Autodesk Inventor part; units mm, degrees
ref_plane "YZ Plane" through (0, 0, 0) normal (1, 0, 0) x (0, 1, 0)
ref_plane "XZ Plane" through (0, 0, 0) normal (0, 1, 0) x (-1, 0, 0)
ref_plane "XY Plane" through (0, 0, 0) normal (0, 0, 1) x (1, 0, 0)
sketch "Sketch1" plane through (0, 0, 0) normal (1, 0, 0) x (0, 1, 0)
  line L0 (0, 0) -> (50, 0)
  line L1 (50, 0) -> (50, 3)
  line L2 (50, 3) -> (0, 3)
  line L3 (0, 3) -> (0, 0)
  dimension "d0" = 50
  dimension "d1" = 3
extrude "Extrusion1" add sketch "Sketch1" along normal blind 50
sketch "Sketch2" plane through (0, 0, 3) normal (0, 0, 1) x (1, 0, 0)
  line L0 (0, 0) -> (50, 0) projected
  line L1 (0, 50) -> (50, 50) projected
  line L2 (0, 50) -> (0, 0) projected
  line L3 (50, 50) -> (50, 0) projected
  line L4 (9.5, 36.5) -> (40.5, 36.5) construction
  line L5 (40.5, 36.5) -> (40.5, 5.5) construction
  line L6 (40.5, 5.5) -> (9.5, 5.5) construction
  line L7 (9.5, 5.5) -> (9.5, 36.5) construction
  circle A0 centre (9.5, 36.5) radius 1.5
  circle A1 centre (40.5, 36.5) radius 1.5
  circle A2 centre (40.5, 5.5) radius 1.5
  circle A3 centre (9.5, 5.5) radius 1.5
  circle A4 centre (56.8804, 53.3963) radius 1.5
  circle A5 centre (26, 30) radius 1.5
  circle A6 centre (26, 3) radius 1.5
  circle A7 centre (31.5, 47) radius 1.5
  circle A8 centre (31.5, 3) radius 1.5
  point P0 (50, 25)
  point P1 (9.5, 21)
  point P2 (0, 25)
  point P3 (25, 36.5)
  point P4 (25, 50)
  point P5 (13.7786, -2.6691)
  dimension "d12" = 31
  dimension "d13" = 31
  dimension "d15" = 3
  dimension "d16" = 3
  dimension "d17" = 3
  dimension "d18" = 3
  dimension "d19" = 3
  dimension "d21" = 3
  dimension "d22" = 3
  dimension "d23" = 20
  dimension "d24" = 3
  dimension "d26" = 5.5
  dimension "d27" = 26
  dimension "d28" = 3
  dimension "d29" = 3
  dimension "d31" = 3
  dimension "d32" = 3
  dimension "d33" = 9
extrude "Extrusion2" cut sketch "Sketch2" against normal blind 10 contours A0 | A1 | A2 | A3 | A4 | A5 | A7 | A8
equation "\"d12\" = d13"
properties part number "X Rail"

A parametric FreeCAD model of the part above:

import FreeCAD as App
import Part
import Sketcher

V = App.Vector

doc = App.newDocument("Part")
body = doc.addObject("PartDesign::Body", "Body")

# Sketch on YZ plane
sketch1 = body.newObject("Sketcher::SketchObject", "Sketch")
sketch1.AttachmentSupport = (doc.getObject("YZ_Plane"), [""])
sketch1.MapMode = "FlatFace"
sketch1.addGeometry([
    Part.LineSegment(V(0, 3, 0), V(0, 0, 0)),
    Part.LineSegment(V(0, 0, 0), V(50, 0, 0)),
    Part.LineSegment(V(50, 0, 0), V(50, 3, 0)),
    Part.LineSegment(V(50, 3, 0), V(0, 3, 0)),
], False)
sketch1.addConstraint([
    Sketcher.Constraint("Coincident", 0, 2, 1, 1),
    Sketcher.Constraint("Coincident", 1, 2, 2, 1),
    Sketcher.Constraint("Coincident", 2, 2, 3, 1),
    Sketcher.Constraint("Coincident", 3, 2, 0, 1),
    Sketcher.Constraint("Vertical", 0),
    Sketcher.Constraint("Horizontal", 1),
    Sketcher.Constraint("Vertical", 2),
    Sketcher.Constraint("Horizontal", 3),
    Sketcher.Constraint("Coincident", 0, 2, -1, 1),
    Sketcher.Constraint("DistanceX", 1, 1, 1, 2, 50.0),
    Sketcher.Constraint("DistanceY", 0, 2, 0, 1, 3.0),
])
pad1 = body.newObject("PartDesign::Pad", "Pad")
pad1.Profile = sketch1
pad1.Length = 50

# Sketch on XY plane
sketch2 = body.newObject("Sketcher::SketchObject", "Sketch001")
sketch2.AttachmentSupport = (doc.getObject("XY_Plane"), [""])
sketch2.MapMode = "FlatFace"
sketch2.AttachmentOffset = App.Placement(V(0, 0, 3), App.Rotation())
sketch2.addGeometry([
    Part.Circle(V(9.5, 36.5, 0), V(0, 0, 1), 1.5),  # 0
    Part.Circle(V(40.5, 36.5, 0), V(0, 0, 1), 1.5),  # 1
    Part.Circle(V(40.5, 5.5, 0), V(0, 0, 1), 1.5),  # 2
    Part.Circle(V(9.5, 5.5, 0), V(0, 0, 1), 1.5),  # 3
    Part.Circle(V(56.9, 53.4, 0), V(0, 0, 1), 1.5),  # 4
    Part.Circle(V(26, 30, 0), V(0, 0, 1), 1.5),  # 5
    Part.Circle(V(31.5, 47, 0), V(0, 0, 1), 1.5),  # 6
    Part.Circle(V(31.5, 3, 0), V(0, 0, 1), 1.5),  # 7
], False)
sketch2.addConstraint([
    Sketcher.Constraint("Equal", 0, 1),
    Sketcher.Constraint("Equal", 1, 2),
    Sketcher.Constraint("Equal", 2, 3),
    Sketcher.Constraint("Equal", 3, 4),
    Sketcher.Constraint("Equal", 4, 5),
    Sketcher.Constraint("Equal", 5, 6),
    Sketcher.Constraint("Equal", 6, 7),
    Sketcher.Constraint("Horizontal", 0, 3, 1, 3),
    Sketcher.Constraint("Horizontal", 2, 3, 3, 3),
    Sketcher.Constraint("Vertical", 1, 3, 2, 3),
    Sketcher.Constraint("Vertical", 0, 3, 3, 3),
    Sketcher.Constraint("Vertical", 6, 3, 7, 3),
    Sketcher.Constraint("Diameter", 0, 3.0),
    Sketcher.Constraint("DistanceX", -1, 1, 5, 3, 26.0),
    Sketcher.Constraint("DistanceY", -1, 1, 7, 3, 3.0),
    Sketcher.Constraint("DistanceX", 0, 3, 1, 3, 31.0),
    Sketcher.Constraint("DistanceY", 2, 3, 1, 3, 31.0),
    Sketcher.Constraint("DistanceX", 6, 3, 1, 3, 9.0),
    Sketcher.Constraint("DistanceY", -1, 1, 2, 3, 5.5),
    Sketcher.Constraint("DistanceX", 5, 3, 6, 3, 5.5),
    Sketcher.Constraint("DistanceY", -1, 1, 5, 3, 30.0),
    Sketcher.Constraint("DistanceY", -1, 1, 6, 3, 47.0),
    Sketcher.Constraint("DistanceX", -1, 1, 4, 3, 56.8804),
    Sketcher.Constraint("DistanceY", -1, 1, 4, 3, 53.3963),
])
pocket1 = body.newObject("PartDesign::Pocket", "Pocket")
pocket1.Profile = sketch2
pocket1.Length = 10

doc.recompute()
